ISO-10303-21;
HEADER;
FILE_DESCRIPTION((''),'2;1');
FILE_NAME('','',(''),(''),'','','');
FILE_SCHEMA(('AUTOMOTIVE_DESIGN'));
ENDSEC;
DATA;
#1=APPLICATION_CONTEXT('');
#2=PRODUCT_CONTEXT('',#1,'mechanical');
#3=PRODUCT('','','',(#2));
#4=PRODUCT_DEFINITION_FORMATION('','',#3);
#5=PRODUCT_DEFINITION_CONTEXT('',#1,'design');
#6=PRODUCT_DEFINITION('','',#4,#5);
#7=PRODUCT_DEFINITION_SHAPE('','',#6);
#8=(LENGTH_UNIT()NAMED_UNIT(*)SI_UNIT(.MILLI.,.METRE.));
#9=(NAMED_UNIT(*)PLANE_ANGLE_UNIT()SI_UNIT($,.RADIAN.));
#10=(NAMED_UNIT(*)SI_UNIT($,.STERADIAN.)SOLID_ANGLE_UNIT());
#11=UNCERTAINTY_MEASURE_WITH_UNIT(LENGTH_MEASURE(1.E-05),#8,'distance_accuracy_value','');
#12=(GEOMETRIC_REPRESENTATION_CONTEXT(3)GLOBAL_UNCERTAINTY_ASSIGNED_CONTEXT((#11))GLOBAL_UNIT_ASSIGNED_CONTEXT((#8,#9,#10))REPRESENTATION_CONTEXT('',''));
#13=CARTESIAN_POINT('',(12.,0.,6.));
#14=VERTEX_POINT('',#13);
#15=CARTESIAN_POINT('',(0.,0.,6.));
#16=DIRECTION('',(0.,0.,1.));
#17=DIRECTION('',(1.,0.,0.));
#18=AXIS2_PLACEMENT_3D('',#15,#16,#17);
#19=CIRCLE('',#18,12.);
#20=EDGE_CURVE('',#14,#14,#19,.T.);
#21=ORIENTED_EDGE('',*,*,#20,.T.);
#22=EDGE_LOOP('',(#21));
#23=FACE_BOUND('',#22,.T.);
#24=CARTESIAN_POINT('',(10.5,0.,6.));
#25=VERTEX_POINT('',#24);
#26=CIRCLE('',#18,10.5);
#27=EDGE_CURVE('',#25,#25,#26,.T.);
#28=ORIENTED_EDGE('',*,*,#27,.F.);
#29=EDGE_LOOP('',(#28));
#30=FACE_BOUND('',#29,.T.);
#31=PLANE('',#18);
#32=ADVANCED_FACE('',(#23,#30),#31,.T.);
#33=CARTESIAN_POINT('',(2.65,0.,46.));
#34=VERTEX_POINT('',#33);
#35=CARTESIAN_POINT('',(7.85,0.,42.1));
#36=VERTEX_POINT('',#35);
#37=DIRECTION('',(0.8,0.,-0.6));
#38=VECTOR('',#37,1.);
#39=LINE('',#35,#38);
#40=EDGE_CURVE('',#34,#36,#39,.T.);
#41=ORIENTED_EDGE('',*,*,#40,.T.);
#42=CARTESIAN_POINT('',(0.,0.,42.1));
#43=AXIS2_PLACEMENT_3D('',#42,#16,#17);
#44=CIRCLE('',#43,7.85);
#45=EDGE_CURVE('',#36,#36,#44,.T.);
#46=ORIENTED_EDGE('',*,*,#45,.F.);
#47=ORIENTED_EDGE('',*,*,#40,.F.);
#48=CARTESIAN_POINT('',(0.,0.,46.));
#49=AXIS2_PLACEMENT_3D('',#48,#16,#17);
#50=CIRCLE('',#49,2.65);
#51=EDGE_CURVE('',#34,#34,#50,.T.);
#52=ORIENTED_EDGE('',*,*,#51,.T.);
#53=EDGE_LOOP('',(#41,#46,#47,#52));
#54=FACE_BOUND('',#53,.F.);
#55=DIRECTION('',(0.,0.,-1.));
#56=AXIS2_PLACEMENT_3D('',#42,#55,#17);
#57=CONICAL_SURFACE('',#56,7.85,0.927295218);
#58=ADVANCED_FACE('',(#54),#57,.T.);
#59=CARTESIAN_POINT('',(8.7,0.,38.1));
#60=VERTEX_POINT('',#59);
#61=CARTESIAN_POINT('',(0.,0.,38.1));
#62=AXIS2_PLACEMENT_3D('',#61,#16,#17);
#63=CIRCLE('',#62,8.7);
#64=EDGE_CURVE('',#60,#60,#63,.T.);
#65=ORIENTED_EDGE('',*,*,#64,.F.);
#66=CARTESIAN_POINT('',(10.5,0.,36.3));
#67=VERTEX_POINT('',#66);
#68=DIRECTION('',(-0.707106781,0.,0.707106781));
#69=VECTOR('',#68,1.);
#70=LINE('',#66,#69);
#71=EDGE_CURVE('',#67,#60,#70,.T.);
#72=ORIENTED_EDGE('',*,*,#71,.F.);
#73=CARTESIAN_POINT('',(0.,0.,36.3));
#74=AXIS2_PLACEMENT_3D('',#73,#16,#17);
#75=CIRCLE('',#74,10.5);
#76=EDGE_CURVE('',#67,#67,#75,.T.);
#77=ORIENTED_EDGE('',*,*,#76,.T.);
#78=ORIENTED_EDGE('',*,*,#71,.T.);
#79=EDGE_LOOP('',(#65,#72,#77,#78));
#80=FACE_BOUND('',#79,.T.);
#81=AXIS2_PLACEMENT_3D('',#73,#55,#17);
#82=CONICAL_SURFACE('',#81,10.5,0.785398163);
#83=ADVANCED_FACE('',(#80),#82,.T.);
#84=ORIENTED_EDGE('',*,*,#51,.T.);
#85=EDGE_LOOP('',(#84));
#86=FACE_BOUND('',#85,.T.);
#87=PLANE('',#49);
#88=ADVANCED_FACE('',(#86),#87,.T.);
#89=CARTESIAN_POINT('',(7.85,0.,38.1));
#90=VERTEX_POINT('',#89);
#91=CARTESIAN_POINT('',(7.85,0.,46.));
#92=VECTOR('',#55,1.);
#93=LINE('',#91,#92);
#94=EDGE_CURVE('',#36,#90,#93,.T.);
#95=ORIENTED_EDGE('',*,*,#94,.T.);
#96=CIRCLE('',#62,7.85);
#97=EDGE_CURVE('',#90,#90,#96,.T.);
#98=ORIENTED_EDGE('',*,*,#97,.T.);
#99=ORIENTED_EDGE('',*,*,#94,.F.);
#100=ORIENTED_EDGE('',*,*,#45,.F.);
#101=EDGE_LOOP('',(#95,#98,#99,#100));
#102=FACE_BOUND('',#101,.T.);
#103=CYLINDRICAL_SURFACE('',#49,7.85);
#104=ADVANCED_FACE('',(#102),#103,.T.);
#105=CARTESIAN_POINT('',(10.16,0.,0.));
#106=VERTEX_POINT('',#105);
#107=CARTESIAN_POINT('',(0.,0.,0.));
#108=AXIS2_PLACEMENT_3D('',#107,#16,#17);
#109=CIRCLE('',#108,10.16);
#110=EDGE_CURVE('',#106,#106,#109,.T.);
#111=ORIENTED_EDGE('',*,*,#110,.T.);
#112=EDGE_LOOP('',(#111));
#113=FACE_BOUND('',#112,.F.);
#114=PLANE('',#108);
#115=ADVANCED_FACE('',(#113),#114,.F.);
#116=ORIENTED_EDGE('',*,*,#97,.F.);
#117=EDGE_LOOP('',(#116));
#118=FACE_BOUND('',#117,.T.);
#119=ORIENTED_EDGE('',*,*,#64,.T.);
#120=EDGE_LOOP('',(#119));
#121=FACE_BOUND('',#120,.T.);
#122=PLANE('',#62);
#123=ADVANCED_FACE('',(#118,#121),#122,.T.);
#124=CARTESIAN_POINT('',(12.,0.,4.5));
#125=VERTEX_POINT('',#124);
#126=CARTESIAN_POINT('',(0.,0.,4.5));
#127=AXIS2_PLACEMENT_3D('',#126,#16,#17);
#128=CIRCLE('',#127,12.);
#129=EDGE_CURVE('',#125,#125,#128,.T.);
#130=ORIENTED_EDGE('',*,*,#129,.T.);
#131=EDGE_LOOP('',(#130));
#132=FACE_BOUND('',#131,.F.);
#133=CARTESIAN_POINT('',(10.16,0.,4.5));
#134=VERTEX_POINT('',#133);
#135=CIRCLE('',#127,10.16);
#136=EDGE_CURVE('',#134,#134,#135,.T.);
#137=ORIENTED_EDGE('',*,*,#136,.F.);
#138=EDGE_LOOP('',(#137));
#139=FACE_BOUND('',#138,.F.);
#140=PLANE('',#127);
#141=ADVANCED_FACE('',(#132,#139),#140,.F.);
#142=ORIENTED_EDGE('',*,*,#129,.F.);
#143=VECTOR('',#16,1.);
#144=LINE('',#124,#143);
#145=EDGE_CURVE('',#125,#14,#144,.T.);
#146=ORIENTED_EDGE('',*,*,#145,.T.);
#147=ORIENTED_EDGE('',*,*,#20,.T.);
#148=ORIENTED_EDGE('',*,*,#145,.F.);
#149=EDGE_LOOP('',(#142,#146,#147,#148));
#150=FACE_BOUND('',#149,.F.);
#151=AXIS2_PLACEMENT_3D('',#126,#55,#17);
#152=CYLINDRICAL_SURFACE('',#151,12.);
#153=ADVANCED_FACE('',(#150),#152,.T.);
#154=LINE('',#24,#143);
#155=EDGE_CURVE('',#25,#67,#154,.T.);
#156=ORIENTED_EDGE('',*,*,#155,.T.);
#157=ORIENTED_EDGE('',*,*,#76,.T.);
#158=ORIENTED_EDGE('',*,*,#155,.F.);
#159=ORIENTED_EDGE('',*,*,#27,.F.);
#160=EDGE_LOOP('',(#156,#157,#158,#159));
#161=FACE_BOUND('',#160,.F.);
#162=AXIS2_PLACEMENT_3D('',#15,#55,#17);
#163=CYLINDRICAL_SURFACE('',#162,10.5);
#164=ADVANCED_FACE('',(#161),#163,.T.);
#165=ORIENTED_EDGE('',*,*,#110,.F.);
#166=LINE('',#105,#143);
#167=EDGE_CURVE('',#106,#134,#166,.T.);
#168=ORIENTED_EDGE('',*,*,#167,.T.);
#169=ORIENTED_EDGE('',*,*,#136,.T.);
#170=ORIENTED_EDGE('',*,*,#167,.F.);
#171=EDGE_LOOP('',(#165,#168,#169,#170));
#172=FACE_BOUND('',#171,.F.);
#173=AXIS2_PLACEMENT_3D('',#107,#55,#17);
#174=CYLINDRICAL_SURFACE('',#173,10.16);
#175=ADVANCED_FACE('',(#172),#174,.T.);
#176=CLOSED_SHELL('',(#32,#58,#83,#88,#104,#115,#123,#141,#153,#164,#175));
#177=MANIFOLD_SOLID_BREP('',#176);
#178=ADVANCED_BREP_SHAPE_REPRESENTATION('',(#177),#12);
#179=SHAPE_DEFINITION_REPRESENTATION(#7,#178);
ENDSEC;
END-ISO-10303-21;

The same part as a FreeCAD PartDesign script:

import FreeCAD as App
import Part
import Sketcher
from FreeCAD import Vector


def edges_at(feature, points):
    """Names of the edges that pass closest to the given points."""
    edges = feature.Shape.Edges
    near = lambda p: min(range(len(edges)), key=lambda i: edges[i].distToShape(Part.Vertex(*p))[0])
    return sorted({f"Edge{near(p) + 1}" for p in points})

doc = App.newDocument("Part")
body = doc.addObject("PartDesign::Body", "Body")

sketch1 = body.newObject("Sketcher::SketchObject", "Sketch")
sketch1.AttachmentSupport = (doc.getObject("XY_Plane"), [""])
sketch1.MapMode = "FlatFace"
sketch1.addGeometry(Part.Circle(Vector(0, 0, 0), Vector(0, 0, 1), 10.16), False)
sketch1.addConstraint(Sketcher.Constraint("Coincident", 0, 3, -1, 1))
sketch1.addConstraint(Sketcher.Constraint("Diameter", 0, 20.32))
pad1 = body.newObject("PartDesign::Pad", "Pad")
pad1.Profile = sketch1
pad1.Length = 4.5

sketch2 = body.newObject("Sketcher::SketchObject", "Sketch001")
sketch2.AttachmentSupport = (doc.getObject("XY_Plane"), [""])
sketch2.MapMode = "FlatFace"
sketch2.AttachmentOffset = App.Placement(Vector(0, 0, 4.5), App.Rotation())
sketch2.addGeometry(Part.Circle(Vector(0, 0, 0), Vector(0, 0, 1), 12), False)
sketch2.addConstraint(Sketcher.Constraint("Coincident", 0, 3, -1, 1))
sketch2.addConstraint(Sketcher.Constraint("Diameter", 0, 24.0))
pad2 = body.newObject("PartDesign::Pad", "Pad001")
pad2.Profile = sketch2
pad2.Length = 1.5

sketch3 = body.newObject("Sketcher::SketchObject", "Sketch002")
sketch3.AttachmentSupport = (doc.getObject("XY_Plane"), [""])
sketch3.MapMode = "FlatFace"
sketch3.AttachmentOffset = App.Placement(Vector(0, 0, 6), App.Rotation())
sketch3.addGeometry(Part.Circle(Vector(0, 0, 0), Vector(0, 0, 1), 10.5), False)
sketch3.addConstraint(Sketcher.Constraint("Coincident", 0, 3, -1, 1))
sketch3.addConstraint(Sketcher.Constraint("Diameter", 0, 21.0))
pad3 = body.newObject("PartDesign::Pad", "Pad002")
pad3.Profile = sketch3
pad3.Length = 40

sketch4 = body.newObject("Sketcher::SketchObject", "Sketch003")
sketch4.AttachmentSupport = (doc.getObject("XY_Plane"), [""])
sketch4.MapMode = "FlatFace"
sketch4.AttachmentOffset = App.Placement(Vector(0, 0, 46), App.Rotation())
sketch4.addGeometry(Part.Circle(Vector(0, 0, 0), Vector(0, 0, 1), 10.5), False)
sketch4.addGeometry(Part.Circle(Vector(0, 0, 0), Vector(0, 0, 1), 7.85), False)
sketch4.addConstraint(Sketcher.Constraint("Coincident", 0, 3, -1, 1))
sketch4.addConstraint(Sketcher.Constraint("Coincident", 1, 3, -1, 1))
sketch4.addConstraint(Sketcher.Constraint("Diameter", 0, 21.0))
sketch4.addConstraint(Sketcher.Constraint("Diameter", 1, 15.7))
pocket1 = body.newObject("PartDesign::Pocket", "Pocket")
pocket1.Profile = sketch4
pocket1.Length = 7.9
doc.recompute()

chamfer = body.newObject("PartDesign::Chamfer", "Chamfer")
chamfer.Base = (pocket1, edges_at(pocket1, [(-10.5, 0, 38.1)]))
chamfer.Size = 1.8
doc.recompute()

chamfer2 = body.newObject("PartDesign::Chamfer", "Chamfer001")
chamfer2.Base = (chamfer, edges_at(chamfer, [(-7.85, 0, 46)]))
chamfer2.ChamferType = "Two distances"
chamfer2.Size = 5.2
chamfer2.Size2 = 3.9
chamfer2.FlipDirection = True

doc.recompute()
